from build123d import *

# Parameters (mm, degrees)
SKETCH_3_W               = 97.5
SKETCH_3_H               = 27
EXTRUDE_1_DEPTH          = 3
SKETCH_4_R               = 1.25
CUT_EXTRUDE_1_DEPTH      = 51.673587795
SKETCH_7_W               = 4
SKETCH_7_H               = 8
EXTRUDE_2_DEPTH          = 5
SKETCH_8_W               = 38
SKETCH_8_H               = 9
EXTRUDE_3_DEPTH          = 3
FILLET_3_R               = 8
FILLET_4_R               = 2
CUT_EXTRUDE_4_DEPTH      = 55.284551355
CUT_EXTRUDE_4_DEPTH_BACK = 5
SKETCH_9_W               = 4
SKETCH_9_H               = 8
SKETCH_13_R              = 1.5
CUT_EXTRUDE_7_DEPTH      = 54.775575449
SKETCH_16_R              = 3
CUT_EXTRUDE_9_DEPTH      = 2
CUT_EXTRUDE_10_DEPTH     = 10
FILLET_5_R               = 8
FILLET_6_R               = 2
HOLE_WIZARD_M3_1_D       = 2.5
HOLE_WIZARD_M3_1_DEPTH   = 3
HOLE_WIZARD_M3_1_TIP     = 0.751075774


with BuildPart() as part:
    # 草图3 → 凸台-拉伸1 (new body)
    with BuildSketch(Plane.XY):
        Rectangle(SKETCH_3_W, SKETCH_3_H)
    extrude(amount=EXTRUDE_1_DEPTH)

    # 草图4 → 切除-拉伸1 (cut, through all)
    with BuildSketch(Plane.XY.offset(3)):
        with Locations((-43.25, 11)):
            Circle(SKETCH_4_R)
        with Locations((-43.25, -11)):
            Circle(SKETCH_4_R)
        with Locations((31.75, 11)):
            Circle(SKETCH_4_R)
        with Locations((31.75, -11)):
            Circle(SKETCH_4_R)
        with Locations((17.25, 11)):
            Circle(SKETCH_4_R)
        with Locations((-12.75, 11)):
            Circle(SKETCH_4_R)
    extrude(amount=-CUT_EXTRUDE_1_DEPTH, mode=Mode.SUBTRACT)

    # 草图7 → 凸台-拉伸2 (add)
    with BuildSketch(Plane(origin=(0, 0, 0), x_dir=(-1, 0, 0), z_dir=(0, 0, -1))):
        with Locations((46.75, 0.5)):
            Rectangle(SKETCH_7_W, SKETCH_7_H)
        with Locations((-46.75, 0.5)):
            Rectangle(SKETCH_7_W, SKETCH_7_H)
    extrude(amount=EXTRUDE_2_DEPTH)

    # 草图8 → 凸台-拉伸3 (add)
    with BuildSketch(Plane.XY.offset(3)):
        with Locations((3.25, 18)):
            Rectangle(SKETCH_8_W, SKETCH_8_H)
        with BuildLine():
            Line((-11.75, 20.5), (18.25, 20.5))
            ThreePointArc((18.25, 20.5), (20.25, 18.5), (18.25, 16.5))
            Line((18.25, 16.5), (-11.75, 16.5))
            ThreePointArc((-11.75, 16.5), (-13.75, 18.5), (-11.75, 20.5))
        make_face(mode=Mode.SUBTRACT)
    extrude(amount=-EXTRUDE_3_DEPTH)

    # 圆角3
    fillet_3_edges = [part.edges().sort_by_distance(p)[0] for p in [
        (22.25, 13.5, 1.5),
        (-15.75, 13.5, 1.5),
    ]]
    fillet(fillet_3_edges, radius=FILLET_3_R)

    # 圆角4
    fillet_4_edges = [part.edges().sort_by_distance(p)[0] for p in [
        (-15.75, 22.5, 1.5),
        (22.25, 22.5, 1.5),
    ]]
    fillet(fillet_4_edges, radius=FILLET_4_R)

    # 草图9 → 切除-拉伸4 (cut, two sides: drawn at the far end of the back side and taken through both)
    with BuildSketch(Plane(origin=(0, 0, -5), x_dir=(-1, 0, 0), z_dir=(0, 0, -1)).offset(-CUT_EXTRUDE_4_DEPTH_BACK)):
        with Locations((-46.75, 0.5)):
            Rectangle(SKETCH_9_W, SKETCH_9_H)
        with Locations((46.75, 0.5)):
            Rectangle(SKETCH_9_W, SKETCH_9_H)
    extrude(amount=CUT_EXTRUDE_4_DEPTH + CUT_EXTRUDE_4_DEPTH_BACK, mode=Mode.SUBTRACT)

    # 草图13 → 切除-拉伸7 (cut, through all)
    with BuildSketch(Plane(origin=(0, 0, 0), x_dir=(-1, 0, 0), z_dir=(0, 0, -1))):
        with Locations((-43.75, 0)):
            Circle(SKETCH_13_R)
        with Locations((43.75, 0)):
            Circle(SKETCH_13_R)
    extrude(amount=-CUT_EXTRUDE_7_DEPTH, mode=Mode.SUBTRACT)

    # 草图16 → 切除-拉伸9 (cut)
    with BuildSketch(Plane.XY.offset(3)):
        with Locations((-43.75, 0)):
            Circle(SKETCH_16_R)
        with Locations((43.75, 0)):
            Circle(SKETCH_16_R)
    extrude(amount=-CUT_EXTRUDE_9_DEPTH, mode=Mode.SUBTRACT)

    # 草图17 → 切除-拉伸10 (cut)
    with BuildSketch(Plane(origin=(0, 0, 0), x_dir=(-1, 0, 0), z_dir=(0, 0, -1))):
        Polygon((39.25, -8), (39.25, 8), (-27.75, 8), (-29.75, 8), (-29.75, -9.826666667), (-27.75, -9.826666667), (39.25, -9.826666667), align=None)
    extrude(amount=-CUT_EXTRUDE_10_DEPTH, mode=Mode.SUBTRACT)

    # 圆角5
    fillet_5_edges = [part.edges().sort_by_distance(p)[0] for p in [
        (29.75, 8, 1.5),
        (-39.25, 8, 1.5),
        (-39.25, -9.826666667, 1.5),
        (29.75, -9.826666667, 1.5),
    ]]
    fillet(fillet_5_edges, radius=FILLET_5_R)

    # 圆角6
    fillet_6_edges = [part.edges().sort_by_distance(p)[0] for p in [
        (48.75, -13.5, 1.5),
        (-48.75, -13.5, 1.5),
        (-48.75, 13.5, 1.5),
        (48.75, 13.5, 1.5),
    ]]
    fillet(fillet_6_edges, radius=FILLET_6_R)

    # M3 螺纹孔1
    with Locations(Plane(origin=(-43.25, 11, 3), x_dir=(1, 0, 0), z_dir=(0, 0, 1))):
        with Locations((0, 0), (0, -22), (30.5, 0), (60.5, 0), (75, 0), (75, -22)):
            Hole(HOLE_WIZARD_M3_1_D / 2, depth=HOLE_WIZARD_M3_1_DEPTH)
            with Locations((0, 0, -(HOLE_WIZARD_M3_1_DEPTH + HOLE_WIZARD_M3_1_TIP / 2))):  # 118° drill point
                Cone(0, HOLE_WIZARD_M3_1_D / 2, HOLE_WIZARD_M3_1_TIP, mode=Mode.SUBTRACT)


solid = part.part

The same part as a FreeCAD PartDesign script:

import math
import FreeCAD as App
import Part
import Sketcher
from FreeCAD import Vector


def edges_at(feature, points):
    """Names of the edges that pass closest to the given points."""
    edges = feature.Shape.Edges
    near = lambda p: min(range(len(edges)), key=lambda i: edges[i].distToShape(Part.Vertex(*p))[0])
    return sorted({f"Edge{near(p) + 1}" for p in points})

doc = App.newDocument("Part")
body = doc.addObject("PartDesign::Body", "Body")

# Sketch on XY plane
sketch1 = doc.addObject("Sketcher::SketchObject", "Sketch")
body.addObject(sketch1)
sketch1.AttachmentSupport = (doc.XY_Plane, [""])
sketch1.MapMode = "FlatFace"
sketch1.addGeometry([
    Part.LineSegment(Vector(-48.75, 13.5, 0), Vector(-48.75, -13.5, 0)),
    Part.LineSegment(Vector(-48.75, -13.5, 0), Vector(48.75, -13.5, 0)),
    Part.LineSegment(Vector(48.75, -13.5, 0), Vector(48.75, 13.5, 0)),
    Part.LineSegment(Vector(48.75, 13.5, 0), Vector(-48.75, 13.5, 0)),
], False)
sketch1.addConstraint([
    Sketcher.Constraint("Coincident", 0, 2, 1, 1),
    Sketcher.Constraint("Coincident", 1, 2, 2, 1),
    Sketcher.Constraint("Coincident", 2, 2, 3, 1),
    Sketcher.Constraint("Coincident", 3, 2, 0, 1),
    Sketcher.Constraint("Vertical", 0),
    Sketcher.Constraint("Horizontal", 1),
    Sketcher.Constraint("Vertical", 2),
    Sketcher.Constraint("Horizontal", 3),
    Sketcher.Constraint("Symmetric", 0, 2, 2, 2, -1, 1),
    Sketcher.Constraint("DistanceY", 0, 2, 0, 1, 27.0),
    Sketcher.Constraint("DistanceX", 1, 1, 1, 2, 97.5),
])
pad1 = doc.addObject("PartDesign::Pad", "Pad")
body.addObject(pad1)
pad1.Profile = sketch1
pad1.Length = 3

# Sketch on XY plane
sketch2 = doc.addObject("Sketcher::SketchObject", "Sketch001")
body.addObject(sketch2)
sketch2.AttachmentSupport = (doc.XY_Plane, [""])
sketch2.MapMode = "FlatFace"
sketch2.AttachmentOffset = App.Placement(Vector(0, 0, 3), App.Rotation())
sketch2.addGeometry([
    Part.Circle(Vector(-43.25, 11, 0), Vector(0, 0, 1), 1.25),  # 0
    Part.Circle(Vector(-43.25, -11, 0), Vector(0, 0, 1), 1.25),  # 1
    Part.Circle(Vector(31.75, 11, 0), Vector(0, 0, 1), 1.25),  # 2
    Part.Circle(Vector(31.75, -11, 0), Vector(0, 0, 1), 1.25),  # 3
    Part.Circle(Vector(17.25, 11, 0), Vector(0, 0, 1), 1.25),  # 4
    Part.Circle(Vector(-12.75, 11, 0), Vector(0, 0, 1), 1.25),  # 5
], False)
sketch2.addConstraint([
    Sketcher.Constraint("Equal", 0, 1),
    Sketcher.Constraint("Equal", 1, 2),
    Sketcher.Constraint("Equal", 2, 3),
    Sketcher.Constraint("Equal", 3, 4),
    Sketcher.Constraint("Equal", 4, 5),
    Sketcher.Constraint("Symmetric", 0, 3, 1, 3, -1),
    Sketcher.Constraint("Symmetric", 2, 3, 3, 3, -1),
    Sketcher.Constraint("Horizontal", 0, 3, 2, 3),
    Sketcher.Constraint("Horizontal", 2, 3, 4, 3),
    Sketcher.Constraint("Horizontal", 4, 3, 5, 3),
    Sketcher.Constraint("Diameter", 0, 2.5),
    Sketcher.Constraint("DistanceY", -1, 1, 0, 3, 11.0),
    Sketcher.Constraint("DistanceX", 0, 3, 2, 3, 75.0),
    Sketcher.Constraint("DistanceX", 5, 3, 4, 3, 30.0),
    Sketcher.Constraint("DistanceX", 4, 3, 2, 3, 14.5),
    Sketcher.Constraint("DistanceX", 0, 3, -1, 1, 43.25),
])
pocket1 = doc.addObject("PartDesign::Pocket", "Pocket")
body.addObject(pocket1)
pocket1.Profile = sketch2
pocket1.Type = "ThroughAll"

# Sketch on XY plane
sketch3 = doc.addObject("Sketcher::SketchObject", "Sketch002")
body.addObject(sketch3)
sketch3.AttachmentSupport = (doc.XY_Plane, [""])
sketch3.MapMode = "FlatFace"
sketch3.addGeometry([
    Part.LineSegment(Vector(-44.75, 4.5, 0), Vector(-44.75, -3.5, 0)),  # 0
    Part.LineSegment(Vector(-44.75, -3.5, 0), Vector(-48.75, -3.5, 0)),  # 1
    Part.LineSegment(Vector(-48.75, -3.5, 0), Vector(-48.75, 4.5, 0)),  # 2
    Part.LineSegment(Vector(-48.75, 4.5, 0), Vector(-44.75, 4.5, 0)),  # 3
    Part.LineSegment(Vector(48.75, 4.5, 0), Vector(48.75, -3.5, 0)),  # 4
    Part.LineSegment(Vector(48.75, -3.5, 0), Vector(44.75, -3.5, 0)),  # 5
    Part.LineSegment(Vector(44.75, -3.5, 0), Vector(44.75, 4.5, 0)),  # 6
    Part.LineSegment(Vector(44.75, 4.5, 0), Vector(48.75, 4.5, 0)),  # 7
], False)
sketch3.addConstraint([
    Sketcher.Constraint("Coincident", 0, 2, 1, 1),
    Sketcher.Constraint("Coincident", 1, 2, 2, 1),
    Sketcher.Constraint("Coincident", 2, 2, 3, 1),
    Sketcher.Constraint("Coincident", 3, 2, 0, 1),
    Sketcher.Constraint("Coincident", 4, 2, 5, 1),
    Sketcher.Constraint("Coincident", 5, 2, 6, 1),
    Sketcher.Constraint("Coincident", 6, 2, 7, 1),
    Sketcher.Constraint("Coincident", 7, 2, 4, 1),
    Sketcher.Constraint("Vertical", 0),
    Sketcher.Constraint("Horizontal", 1),
    Sketcher.Constraint("Vertical", 2),
    Sketcher.Constraint("Horizontal", 3),
    Sketcher.Constraint("Vertical", 4),
    Sketcher.Constraint("Horizontal", 5),
    Sketcher.Constraint("Vertical", 6),
    Sketcher.Constraint("Horizontal", 7),
    Sketcher.Constraint("Symmetric", 1, 2, 4, 2, -2),
    Sketcher.Constraint("Symmetric", 3, 2, 6, 2, -2),
    Sketcher.Constraint("DistanceX", 1, 2, 1, 1, 4.0),
    Sketcher.Constraint("DistanceY", 0, 2, 0, 1, 8.0),
    Sketcher.Constraint("DistanceY", 0, 2, -1, 1, 3.5),
    Sketcher.Constraint("DistanceX", 0, 2, 4, 2, 93.5),
])
pad2 = doc.addObject("PartDesign::Pad", "Pad001")
body.addObject(pad2)
pad2.Profile = sketch3
pad2.Length = 5
pad2.Reversed = True

# Sketch on XY plane
sketch4 = doc.addObject("Sketcher::SketchObject", "Sketch003")
body.addObject(sketch4)
sketch4.AttachmentSupport = (doc.XY_Plane, [""])
sketch4.MapMode = "FlatFace"
sketch4.AttachmentOffset = App.Placement(Vector(0, 0, 3), App.Rotation())
sketch4.addGeometry([
    Part.LineSegment(Vector(-15.75, 22.5, 0), Vector(-15.75, 13.5, 0)),  # 0
    Part.LineSegment(Vector(-15.75, 13.5, 0), Vector(22.25, 13.5, 0)),  # 1
    Part.LineSegment(Vector(22.25, 13.5, 0), Vector(22.25, 22.5, 0)),  # 2
    Part.LineSegment(Vector(22.25, 22.5, 0), Vector(-15.75, 22.5, 0)),  # 3
    Part.ArcOfCircle(Part.Circle(Vector(-11.75, 18.5, 0), Vector(0, 0, 1), 2), math.radians(90), math.radians(270)),  # 4
    Part.LineSegment(Vector(-11.75, 20.5, 0), Vector(18.25, 20.5, 0)),  # 5
    Part.ArcOfCircle(Part.Circle(Vector(18.25, 18.5, 0), Vector(0, 0, 1), 2), math.radians(-90), math.radians(90)),  # 6
    Part.LineSegment(Vector(18.25, 16.5, 0), Vector(-11.75, 16.5, 0)),  # 7
], False)
sketch4.addConstraint([
    Sketcher.Constraint("Coincident", 0, 2, 1, 1),
    Sketcher.Constraint("Coincident", 1, 2, 2, 1),
    Sketcher.Constraint("Coincident", 2, 2, 3, 1),
    Sketcher.Constraint("Coincident", 3, 2, 0, 1),
    Sketcher.Constraint("Tangent", 4, 1, 5, 1),
    Sketcher.Constraint("Tangent", 5, 2, 6, 2),
    Sketcher.Constraint("Tangent", 6, 1, 7, 1),
    Sketcher.Constraint("Tangent", 7, 2, 4, 2),
    Sketcher.Constraint("Vertical", 0),
    Sketcher.Constraint("Horizontal", 1),
    Sketcher.Constraint("Vertical", 2),
    Sketcher.Constraint("Horizontal", 3),
    Sketcher.Constraint("Horizontal", 5),
    Sketcher.Constraint("Horizontal", 7),
    Sketcher.Constraint("Radius", 4, 2.0),
    Sketcher.Constraint("DistanceX", 1, 1, 1, 2, 38.0),
    Sketcher.Constraint("DistanceX", 5, 1, 5, 2, 30.0),
    Sketcher.Constraint("DistanceY", 0, 2, 0, 1, 9.0),
    Sketcher.Constraint("DistanceX", 0, 2, 4, 3, 4.0),
    Sketcher.Constraint("DistanceY", 0, 2, 4, 3, 5.0),
    Sketcher.Constraint("DistanceY", -1, 1, 4, 3, 18.5),
    Sketcher.Constraint("DistanceX", 4, 3, -1, 1, 11.75),
])
pad3 = doc.addObject("PartDesign::Pad", "Pad002")
body.addObject(pad3)
pad3.Profile = sketch4
pad3.Length = 3
pad3.Reversed = True
doc.recompute()

fillet = doc.addObject("PartDesign::Fillet", "Fillet")
body.addObject(fillet)
fillet.Base = (pad3, edges_at(pad3, [(22.25, 13.5, 1.5), (-15.75, 13.5, 1.5)]))
fillet.Radius = 8
doc.recompute()

fillet2 = doc.addObject("PartDesign::Fillet", "Fillet001")
body.addObject(fillet2)
fillet2.Base = (fillet, edges_at(fillet, [(-15.75, 22.5, 1.5), (22.25, 22.5, 1.5)]))
fillet2.Radius = 2

# Sketch on XY plane
sketch5 = doc.addObject("Sketcher::SketchObject", "Sketch004")
body.addObject(sketch5)
sketch5.AttachmentSupport = (doc.XY_Plane, [""])
sketch5.MapMode = "FlatFace"
sketch5.AttachmentOffset = App.Placement(Vector(0, 0, -5), App.Rotation())
sketch5.addGeometry([
    Part.LineSegment(Vector(48.75, 4.5, 0), Vector(48.75, -3.5, 0)),  # 0
    Part.LineSegment(Vector(48.75, -3.5, 0), Vector(44.75, -3.5, 0)),  # 1
    Part.LineSegment(Vector(44.75, -3.5, 0), Vector(44.75, 4.5, 0)),  # 2
    Part.LineSegment(Vector(44.75, 4.5, 0), Vector(48.75, 4.5, 0)),  # 3
    Part.LineSegment(Vector(-44.75, 4.5, 0), Vector(-44.75, -3.5, 0)),  # 4
    Part.LineSegment(Vector(-44.75, -3.5, 0), Vector(-48.75, -3.5, 0)),  # 5
    Part.LineSegment(Vector(-48.75, -3.5, 0), Vector(-48.75, 4.5, 0)),  # 6
    Part.LineSegment(Vector(-48.75, 4.5, 0), Vector(-44.75, 4.5, 0)),  # 7
], False)
sketch5.addConstraint([
    Sketcher.Constraint("Coincident", 0, 2, 1, 1),
    Sketcher.Constraint("Coincident", 1, 2, 2, 1),
    Sketcher.Constraint("Coincident", 2, 2, 3, 1),
    Sketcher.Constraint("Coincident", 3, 2, 0, 1),
    Sketcher.Constraint("Coincident", 4, 2, 5, 1),
    Sketcher.Constraint("Coincident", 5, 2, 6, 1),
    Sketcher.Constraint("Coincident", 6, 2, 7, 1),
    Sketcher.Constraint("Coincident", 7, 2, 4, 1),
    Sketcher.Constraint("Vertical", 0),
    Sketcher.Constraint("Horizontal", 1),
    Sketcher.Constraint("Vertical", 2),
    Sketcher.Constraint("Horizontal", 3),
    Sketcher.Constraint("Vertical", 4),
    Sketcher.Constraint("Horizontal", 5),
    Sketcher.Constraint("Vertical", 6),
    Sketcher.Constraint("Horizontal", 7),
    Sketcher.Constraint("Symmetric", 1, 2, 4, 2, -2),
    Sketcher.Constraint("Symmetric", 3, 2, 6, 2, -2),
    Sketcher.Constraint("DistanceX", 1, 2, 1, 1, 4.0),
    Sketcher.Constraint("DistanceY", 0, 2, 0, 1, 8.0),
    Sketcher.Constraint("DistanceY", 0, 2, -1, 1, 3.5),
    Sketcher.Constraint("DistanceX", 4, 2, 1, 2, 89.5),
])
pocket2 = doc.addObject("PartDesign::Pocket", "Pocket001")
body.addObject(pocket2)
pocket2.Profile = sketch5
pocket2.Type = "TwoLengths"
pocket2.Length = 55.284551
pocket2.Length2 = 5

# Sketch on XY plane
sketch6 = doc.addObject("Sketcher::SketchObject", "Sketch005")
body.addObject(sketch6)
sketch6.AttachmentSupport = (doc.XY_Plane, [""])
sketch6.MapMode = "FlatFace"
sketch6.addGeometry([
    Part.Circle(Vector(43.75, 0, 0), Vector(0, 0, 1), 1.5),
    Part.Circle(Vector(-43.75, 0, 0), Vector(0, 0, 1), 1.5),
], False)
sketch6.addConstraint([
    Sketcher.Constraint("Equal", 0, 1),
    Sketcher.Constraint("Symmetric", 0, 3, 1, 3, -1, 1),
    Sketcher.Constraint("PointOnObject", 0, 3, -1),
    Sketcher.Constraint("Diameter", 0, 3.0),
    Sketcher.Constraint("DistanceX", 1, 3, 0, 3, 87.5),
])
pocket3 = doc.addObject("PartDesign::Pocket", "Pocket002")
body.addObject(pocket3)
pocket3.Profile = sketch6
pocket3.Type = "ThroughAll"
pocket3.Reversed = True

# Sketch on XY plane
sketch7 = doc.addObject("Sketcher::SketchObject", "Sketch006")
body.addObject(sketch7)
sketch7.AttachmentSupport = (doc.XY_Plane, [""])
sketch7.MapMode = "FlatFace"
sketch7.AttachmentOffset = App.Placement(Vector(0, 0, 3), App.Rotation())
sketch7.addGeometry([
    Part.Circle(Vector(-43.75, 0, 0), Vector(0, 0, 1), 3),
    Part.Circle(Vector(43.75, 0, 0), Vector(0, 0, 1), 3),
], False)
sketch7.addConstraint([
    Sketcher.Constraint("Equal", 0, 1),
    Sketcher.Constraint("Symmetric", 0, 3, 1, 3, -1, 1),
    Sketcher.Constraint("PointOnObject", 0, 3, -1),
    Sketcher.Constraint("Diameter", 0, 6.0),
    Sketcher.Constraint("DistanceX", 0, 3, 1, 3, 87.5),
])
pocket4 = doc.addObject("PartDesign::Pocket", "Pocket003")
body.addObject(pocket4)
pocket4.Profile = sketch7
pocket4.Length = 2

# Sketch on XY plane
sketch8 = doc.addObject("Sketcher::SketchObject", "Sketch007")
body.addObject(sketch8)
sketch8.AttachmentSupport = (doc.XY_Plane, [""])
sketch8.MapMode = "FlatFace"
sketch8.addGeometry([
    Part.LineSegment(Vector(-39.25, 8, 0), Vector(29.75, 8, 0)),
    Part.LineSegment(Vector(29.75, 8, 0), Vector(29.75, -9.826667, 0)),
    Part.LineSegment(Vector(29.75, -9.826667, 0), Vector(-39.25, -9.826667, 0)),
    Part.LineSegment(Vector(-39.25, -9.826667, 0), Vector(-39.25, 8, 0)),
], False)
sketch8.addConstraint([
    Sketcher.Constraint("Coincident", 0, 2, 1, 1),
    Sketcher.Constraint("Coincident", 1, 2, 2, 1),
    Sketcher.Constraint("Coincident", 2, 2, 3, 1),
    Sketcher.Constraint("Coincident", 3, 2, 0, 1),
    Sketcher.Constraint("Horizontal", 0),
    Sketcher.Constraint("Vertical", 1),
    Sketcher.Constraint("Horizontal", 2),
    Sketcher.Constraint("Vertical", 3),
    Sketcher.Constraint("DistanceX", 0, 1, 0, 2, 69.0),
    Sketcher.Constraint("DistanceY", -1, 1, 0, 2, 8.0),
    Sketcher.Constraint("DistanceX", -1, 1, 0, 2, 29.75),
    Sketcher.Constraint("DistanceY", 1, 2, 1, 1, 17.826667),
])
pocket5 = doc.addObject("PartDesign::Pocket", "Pocket004")
body.addObject(pocket5)
pocket5.Profile = sketch8
pocket5.Length = 10
pocket5.Reversed = True
doc.recompute()

fillet3 = doc.addObject("PartDesign::Fillet", "Fillet002")
body.addObject(fillet3)
fillet3.Base = (pocket5, edges_at(pocket5, [
    (29.75, 8, 1.5),
    (-39.25, 8, 1.5),
    (-39.25, -9.827, 1.5),
    (29.75, -9.827, 1.5),
]))
fillet3.Radius = 8
doc.recompute()

fillet4 = doc.addObject("PartDesign::Fillet", "Fillet003")
body.addObject(fillet4)
fillet4.Base = (fillet3, edges_at(fillet3, [
    (48.75, -13.5, 1.5),
    (-48.75, -13.5, 1.5),
    (-48.75, 13.5, 1.5),
    (48.75, 13.5, 1.5),
]))
fillet4.Radius = 2

# Sketch on XY plane
sketch9 = doc.addObject("Sketcher::SketchObject", "Sketch008")
body.addObject(sketch9)
sketch9.AttachmentSupport = (doc.XY_Plane, [""])
sketch9.MapMode = "FlatFace"
sketch9.AttachmentOffset = App.Placement(Vector(0, 0, 3), App.Rotation())
sketch9.addGeometry([
    Part.Circle(Vector(-43.25, 11, 0), Vector(0, 0, 1), 1.25),  # 0
    Part.Circle(Vector(-43.25, -11, 0), Vector(0, 0, 1), 1.25),  # 1
    Part.Circle(Vector(-12.75, 11, 0), Vector(0, 0, 1), 1.25),  # 2
    Part.Circle(Vector(17.25, 11, 0), Vector(0, 0, 1), 1.25),  # 3
    Part.Circle(Vector(31.75, 11, 0), Vector(0, 0, 1), 1.25),  # 4
    Part.Circle(Vector(31.75, -11, 0), Vector(0, 0, 1), 1.25),  # 5
], False)
sketch9.addConstraint([
    Sketcher.Constraint("Equal", 0, 1),
    Sketcher.Constraint("Equal", 1, 2),
    Sketcher.Constraint("Equal", 2, 3),
    Sketcher.Constraint("Equal", 3, 4),
    Sketcher.Constraint("Equal", 4, 5),
    Sketcher.Constraint("Symmetric", 0, 3, 1, 3, -1),
    Sketcher.Constraint("Symmetric", 4, 3, 5, 3, -1),
    Sketcher.Constraint("Horizontal", 0, 3, 2, 3),
    Sketcher.Constraint("Horizontal", 2, 3, 3, 3),
    Sketcher.Constraint("Horizontal", 3, 3, 4, 3),
    Sketcher.Constraint("Diameter", 0, 2.5),
    Sketcher.Constraint("DistanceY", -1, 1, 0, 3, 11.0),
    Sketcher.Constraint("DistanceX", 2, 3, 3, 3, 30.0),
    Sketcher.Constraint("DistanceX", 0, 3, 4, 3, 75.0),
    Sketcher.Constraint("DistanceX", 0, 3, 2, 3, 30.5),
    Sketcher.Constraint("DistanceX", 0, 3, -1, 1, 43.25),
])
doc.recompute()
hole = doc.addObject("PartDesign::Hole", "Hole")
body.addObject(hole)
hole.Profile = sketch9
hole.ThreadType = "None"
hole.Diameter = 2.5
hole.DepthType = "Dimension"
hole.Depth = 3
hole.DrillPoint = "Angled"
hole.DrillPointAngle = 118

doc.recompute()
